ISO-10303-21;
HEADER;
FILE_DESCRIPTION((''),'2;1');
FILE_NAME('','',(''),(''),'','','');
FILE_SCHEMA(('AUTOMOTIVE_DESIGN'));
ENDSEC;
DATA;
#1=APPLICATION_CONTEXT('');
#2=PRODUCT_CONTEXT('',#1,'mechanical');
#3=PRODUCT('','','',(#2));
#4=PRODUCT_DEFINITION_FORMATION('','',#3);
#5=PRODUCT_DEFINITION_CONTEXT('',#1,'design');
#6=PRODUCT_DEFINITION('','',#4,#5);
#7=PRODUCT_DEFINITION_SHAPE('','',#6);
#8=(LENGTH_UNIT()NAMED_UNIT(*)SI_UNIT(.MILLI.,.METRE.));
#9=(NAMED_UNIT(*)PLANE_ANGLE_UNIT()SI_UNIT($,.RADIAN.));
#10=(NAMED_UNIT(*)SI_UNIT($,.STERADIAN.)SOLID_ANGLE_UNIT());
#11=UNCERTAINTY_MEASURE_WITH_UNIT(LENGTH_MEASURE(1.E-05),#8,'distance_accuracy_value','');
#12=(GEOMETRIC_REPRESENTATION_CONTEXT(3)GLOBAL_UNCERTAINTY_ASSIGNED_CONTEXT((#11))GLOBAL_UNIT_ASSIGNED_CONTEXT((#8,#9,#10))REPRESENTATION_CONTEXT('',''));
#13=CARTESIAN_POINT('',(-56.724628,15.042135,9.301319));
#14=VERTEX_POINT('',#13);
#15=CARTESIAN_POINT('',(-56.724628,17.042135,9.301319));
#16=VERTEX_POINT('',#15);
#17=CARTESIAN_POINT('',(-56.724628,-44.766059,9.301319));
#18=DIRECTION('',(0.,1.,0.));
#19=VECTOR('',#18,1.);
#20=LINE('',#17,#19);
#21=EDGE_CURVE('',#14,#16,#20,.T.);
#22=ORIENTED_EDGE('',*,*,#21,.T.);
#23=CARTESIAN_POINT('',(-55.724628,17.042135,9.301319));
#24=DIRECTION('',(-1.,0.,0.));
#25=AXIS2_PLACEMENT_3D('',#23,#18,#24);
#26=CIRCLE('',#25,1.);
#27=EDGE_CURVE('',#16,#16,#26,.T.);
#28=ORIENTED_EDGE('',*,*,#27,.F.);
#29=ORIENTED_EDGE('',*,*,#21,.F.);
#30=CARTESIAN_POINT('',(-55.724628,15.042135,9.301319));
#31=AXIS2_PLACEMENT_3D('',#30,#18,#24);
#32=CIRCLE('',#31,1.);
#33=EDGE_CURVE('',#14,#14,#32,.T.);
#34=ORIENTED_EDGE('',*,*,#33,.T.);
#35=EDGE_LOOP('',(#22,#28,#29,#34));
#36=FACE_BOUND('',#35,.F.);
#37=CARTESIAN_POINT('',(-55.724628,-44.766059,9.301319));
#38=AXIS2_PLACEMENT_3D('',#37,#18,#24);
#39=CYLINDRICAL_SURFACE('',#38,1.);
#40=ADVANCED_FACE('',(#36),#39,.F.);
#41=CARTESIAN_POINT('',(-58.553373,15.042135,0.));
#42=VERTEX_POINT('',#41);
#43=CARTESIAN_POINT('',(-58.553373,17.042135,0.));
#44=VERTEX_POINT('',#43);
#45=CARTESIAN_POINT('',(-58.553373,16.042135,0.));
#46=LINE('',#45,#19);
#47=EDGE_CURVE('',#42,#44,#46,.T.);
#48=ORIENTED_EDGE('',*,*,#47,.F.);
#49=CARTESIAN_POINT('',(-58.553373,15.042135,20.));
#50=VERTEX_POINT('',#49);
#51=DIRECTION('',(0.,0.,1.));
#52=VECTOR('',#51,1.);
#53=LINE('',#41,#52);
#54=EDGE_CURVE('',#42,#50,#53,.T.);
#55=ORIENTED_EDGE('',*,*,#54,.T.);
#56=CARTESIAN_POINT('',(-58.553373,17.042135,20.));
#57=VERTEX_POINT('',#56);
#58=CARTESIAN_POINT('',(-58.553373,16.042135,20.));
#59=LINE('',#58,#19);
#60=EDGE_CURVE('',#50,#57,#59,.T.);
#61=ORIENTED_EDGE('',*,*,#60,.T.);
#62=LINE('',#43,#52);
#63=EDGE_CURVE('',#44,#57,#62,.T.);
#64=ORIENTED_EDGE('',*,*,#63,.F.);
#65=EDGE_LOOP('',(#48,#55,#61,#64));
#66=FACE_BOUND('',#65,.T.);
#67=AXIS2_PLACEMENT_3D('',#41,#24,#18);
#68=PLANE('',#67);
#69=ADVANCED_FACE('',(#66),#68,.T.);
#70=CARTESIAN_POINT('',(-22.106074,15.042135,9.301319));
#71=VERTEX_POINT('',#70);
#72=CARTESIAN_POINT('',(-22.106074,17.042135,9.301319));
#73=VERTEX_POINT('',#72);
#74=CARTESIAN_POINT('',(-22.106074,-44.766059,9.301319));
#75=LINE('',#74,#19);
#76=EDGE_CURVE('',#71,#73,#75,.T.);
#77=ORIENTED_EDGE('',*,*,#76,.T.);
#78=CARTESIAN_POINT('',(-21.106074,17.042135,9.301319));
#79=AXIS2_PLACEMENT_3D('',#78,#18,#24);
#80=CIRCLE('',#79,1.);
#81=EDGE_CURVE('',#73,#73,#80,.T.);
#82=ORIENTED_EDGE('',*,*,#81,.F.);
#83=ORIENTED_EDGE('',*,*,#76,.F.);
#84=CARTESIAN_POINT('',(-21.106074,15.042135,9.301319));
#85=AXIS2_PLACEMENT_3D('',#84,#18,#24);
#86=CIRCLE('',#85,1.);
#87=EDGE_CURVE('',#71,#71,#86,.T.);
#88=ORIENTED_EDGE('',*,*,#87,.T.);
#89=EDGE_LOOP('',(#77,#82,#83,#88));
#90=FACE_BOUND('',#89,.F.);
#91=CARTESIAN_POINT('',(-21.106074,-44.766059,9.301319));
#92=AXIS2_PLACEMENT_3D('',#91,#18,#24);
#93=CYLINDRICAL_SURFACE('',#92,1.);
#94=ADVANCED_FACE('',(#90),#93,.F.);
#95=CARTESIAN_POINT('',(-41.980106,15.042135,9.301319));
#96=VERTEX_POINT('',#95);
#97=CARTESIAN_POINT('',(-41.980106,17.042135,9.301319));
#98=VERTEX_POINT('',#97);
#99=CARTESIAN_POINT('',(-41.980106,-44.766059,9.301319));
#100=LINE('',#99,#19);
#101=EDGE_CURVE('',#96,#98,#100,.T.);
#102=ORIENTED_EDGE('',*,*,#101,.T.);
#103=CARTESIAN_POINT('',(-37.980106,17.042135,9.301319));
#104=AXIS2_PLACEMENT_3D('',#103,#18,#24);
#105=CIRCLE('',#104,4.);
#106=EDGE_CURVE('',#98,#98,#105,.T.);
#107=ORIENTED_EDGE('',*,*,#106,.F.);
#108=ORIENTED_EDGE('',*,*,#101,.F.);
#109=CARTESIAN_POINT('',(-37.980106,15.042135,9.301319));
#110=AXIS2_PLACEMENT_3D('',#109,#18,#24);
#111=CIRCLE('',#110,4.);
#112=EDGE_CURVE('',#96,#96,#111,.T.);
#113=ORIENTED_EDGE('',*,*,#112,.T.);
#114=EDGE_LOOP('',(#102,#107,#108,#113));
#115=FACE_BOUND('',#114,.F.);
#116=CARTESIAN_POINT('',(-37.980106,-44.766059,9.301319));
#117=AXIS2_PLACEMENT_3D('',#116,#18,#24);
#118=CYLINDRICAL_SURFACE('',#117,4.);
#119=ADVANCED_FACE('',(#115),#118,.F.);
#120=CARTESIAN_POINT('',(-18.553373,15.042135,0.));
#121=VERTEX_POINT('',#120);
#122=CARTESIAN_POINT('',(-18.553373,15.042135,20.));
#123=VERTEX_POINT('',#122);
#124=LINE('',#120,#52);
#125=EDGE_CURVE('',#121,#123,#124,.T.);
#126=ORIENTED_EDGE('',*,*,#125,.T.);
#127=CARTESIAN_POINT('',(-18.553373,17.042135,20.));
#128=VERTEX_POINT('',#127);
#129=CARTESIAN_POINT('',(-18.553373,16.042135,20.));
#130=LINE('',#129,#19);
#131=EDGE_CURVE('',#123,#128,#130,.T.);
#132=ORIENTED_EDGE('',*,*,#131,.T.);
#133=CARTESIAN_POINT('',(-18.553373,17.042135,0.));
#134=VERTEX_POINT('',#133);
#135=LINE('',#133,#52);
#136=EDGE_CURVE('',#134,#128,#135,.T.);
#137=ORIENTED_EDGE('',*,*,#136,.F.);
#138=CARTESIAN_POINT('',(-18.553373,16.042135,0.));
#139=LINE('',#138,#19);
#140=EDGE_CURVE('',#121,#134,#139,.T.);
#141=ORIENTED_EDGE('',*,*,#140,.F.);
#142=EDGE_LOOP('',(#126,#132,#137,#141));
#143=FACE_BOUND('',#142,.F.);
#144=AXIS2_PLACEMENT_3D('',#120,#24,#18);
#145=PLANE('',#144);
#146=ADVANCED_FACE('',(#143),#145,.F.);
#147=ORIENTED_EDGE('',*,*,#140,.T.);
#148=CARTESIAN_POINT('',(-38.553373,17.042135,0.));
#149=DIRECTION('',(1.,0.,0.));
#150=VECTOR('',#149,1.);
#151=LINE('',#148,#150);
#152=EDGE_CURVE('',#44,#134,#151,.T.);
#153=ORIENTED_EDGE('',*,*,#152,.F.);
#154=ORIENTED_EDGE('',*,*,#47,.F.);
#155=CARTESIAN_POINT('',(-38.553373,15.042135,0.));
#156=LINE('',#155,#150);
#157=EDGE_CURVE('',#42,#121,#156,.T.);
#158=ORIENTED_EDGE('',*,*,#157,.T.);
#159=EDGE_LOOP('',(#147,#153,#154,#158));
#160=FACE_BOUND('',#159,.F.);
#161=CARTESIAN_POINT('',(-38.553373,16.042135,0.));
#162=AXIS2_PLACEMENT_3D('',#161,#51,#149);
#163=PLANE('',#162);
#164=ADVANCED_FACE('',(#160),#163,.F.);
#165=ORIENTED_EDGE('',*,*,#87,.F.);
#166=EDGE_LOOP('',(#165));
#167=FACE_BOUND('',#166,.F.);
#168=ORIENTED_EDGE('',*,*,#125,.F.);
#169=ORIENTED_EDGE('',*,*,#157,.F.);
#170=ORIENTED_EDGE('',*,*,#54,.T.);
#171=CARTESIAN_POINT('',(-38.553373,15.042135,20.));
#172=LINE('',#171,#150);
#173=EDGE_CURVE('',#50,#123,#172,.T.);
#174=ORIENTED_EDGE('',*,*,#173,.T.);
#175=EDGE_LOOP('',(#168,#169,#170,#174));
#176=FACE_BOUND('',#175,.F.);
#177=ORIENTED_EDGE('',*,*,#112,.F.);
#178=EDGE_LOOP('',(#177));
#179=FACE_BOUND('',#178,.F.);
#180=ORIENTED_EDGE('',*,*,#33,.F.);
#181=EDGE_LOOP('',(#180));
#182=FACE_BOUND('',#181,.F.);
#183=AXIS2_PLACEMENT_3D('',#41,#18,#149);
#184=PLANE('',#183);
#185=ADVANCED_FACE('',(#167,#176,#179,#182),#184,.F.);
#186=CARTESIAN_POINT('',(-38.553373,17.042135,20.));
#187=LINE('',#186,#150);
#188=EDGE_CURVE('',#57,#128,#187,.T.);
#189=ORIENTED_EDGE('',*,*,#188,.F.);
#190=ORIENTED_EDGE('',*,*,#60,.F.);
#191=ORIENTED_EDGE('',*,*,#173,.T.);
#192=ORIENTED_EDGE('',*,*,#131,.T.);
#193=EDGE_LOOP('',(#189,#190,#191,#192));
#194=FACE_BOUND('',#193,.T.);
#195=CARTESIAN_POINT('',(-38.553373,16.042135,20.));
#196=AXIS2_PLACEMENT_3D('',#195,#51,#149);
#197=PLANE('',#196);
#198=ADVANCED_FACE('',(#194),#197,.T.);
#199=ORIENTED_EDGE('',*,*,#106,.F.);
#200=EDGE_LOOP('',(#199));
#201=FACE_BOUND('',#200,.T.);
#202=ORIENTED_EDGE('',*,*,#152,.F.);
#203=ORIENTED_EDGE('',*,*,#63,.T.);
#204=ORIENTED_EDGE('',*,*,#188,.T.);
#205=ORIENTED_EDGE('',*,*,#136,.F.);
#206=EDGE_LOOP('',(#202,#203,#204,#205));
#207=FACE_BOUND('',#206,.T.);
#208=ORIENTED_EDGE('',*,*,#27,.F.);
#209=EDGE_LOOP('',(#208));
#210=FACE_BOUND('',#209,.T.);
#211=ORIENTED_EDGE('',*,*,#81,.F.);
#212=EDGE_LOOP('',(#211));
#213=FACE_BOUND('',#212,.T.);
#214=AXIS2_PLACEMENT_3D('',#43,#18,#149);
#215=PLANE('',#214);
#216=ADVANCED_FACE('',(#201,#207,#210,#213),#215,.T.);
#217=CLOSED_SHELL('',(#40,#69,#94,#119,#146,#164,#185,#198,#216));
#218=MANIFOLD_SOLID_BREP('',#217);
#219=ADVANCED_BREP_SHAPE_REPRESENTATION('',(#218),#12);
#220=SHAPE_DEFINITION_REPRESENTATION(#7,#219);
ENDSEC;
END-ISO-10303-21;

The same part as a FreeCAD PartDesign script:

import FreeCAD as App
import Part
import Sketcher

V = App.Vector
Q = App.Units.Quantity


def add_polygon(sketch, points):
    """Adds a closed chain of lines whose ends are joined by coincident constraints."""
    first, n = sketch.GeometryCount, len(points)
    for a, b in zip(points, points[1:] + points[:1]):
        sketch.addGeometry(Part.LineSegment(App.Vector(*a, 0), App.Vector(*b, 0)), False)
    for i in range(n):
        sketch.addConstraint(Sketcher.Constraint("Coincident", first + i, 2, first + (i + 1) % n, 1))

doc = App.newDocument("Part")
body = doc.addObject("PartDesign::Body", "Body")

# Sketch on XY plane
sketch1 = body.newObject("Sketcher::SketchObject", "Sketch")
sketch1.AttachmentSupport = (doc.getObject("XY_Plane"), [""])
sketch1.MapMode = "FlatFace"
add_polygon(sketch1, [(-58.553373, 17.042135), (-58.553373, 15.042135), (-18.553373, 15.042135), (-18.553373, 17.042135)])  # lines 0-3
sketch1.addConstraint([
    Sketcher.Constraint("Vertical", 0),
    Sketcher.Constraint("Horizontal", 1),
    Sketcher.Constraint("Vertical", 2),
    Sketcher.Constraint("Horizontal", 3),
    Sketcher.Constraint("DistanceX", 1, 1, 1, 2, Q("40 mm")),
    Sketcher.Constraint("DistanceY", 0, 2, 0, 1, Q("2 mm")),
    Sketcher.Constraint("DistanceX", 0, 2, -1, 1, Q("58.553373 mm")),
    Sketcher.Constraint("DistanceY", -1, 1, 0, 2, Q("15.042135 mm")),
])
pad1 = body.newObject("PartDesign::Pad", "Pad")
pad1.Profile = sketch1
pad1.Length = 20

# Sketch on XZ plane
sketch2 = body.newObject("Sketcher::SketchObject", "Sketch001")
sketch2.AttachmentSupport = (doc.getObject("XZ_Plane"), [""])
sketch2.MapMode = "FlatFace"
sketch2.addGeometry(Part.Circle(V(-37.980106, 9.301319, 0), V(0, 0, 1), 4), False)
sketch2.addConstraint([
    Sketcher.Constraint("Diameter", 0, Q("8 mm")),
    Sketcher.Constraint("DistanceY", -1, 1, 0, 3, Q("9.301319 mm")),
    Sketcher.Constraint("DistanceX", 0, 3, -1, 1, Q("37.980106 mm")),
])
doc.recompute()
hole = body.newObject("PartDesign::Hole", "Hole")
hole.Profile = sketch2
hole.ThreadType = "None"
hole.Diameter = 8
hole.DepthType = "ThroughAll"

# Sketch on XZ plane
sketch3 = body.newObject("Sketcher::SketchObject", "Sketch002")
sketch3.AttachmentSupport = (doc.getObject("XZ_Plane"), [""])
sketch3.MapMode = "FlatFace"
sketch3.addGeometry([
    Part.Circle(V(-55.724628, 9.301319, 0), V(0, 0, 1), 1),
    Part.Circle(V(-21.106074, 9.301319, 0), V(0, 0, 1), 1),
], False)
sketch3.addConstraint([
    Sketcher.Constraint("Equal", 0, 1),
    Sketcher.Constraint("Horizontal", 0, 3, 1, 3),
    Sketcher.Constraint("Diameter", 0, Q("2 mm")),
    Sketcher.Constraint("DistanceX", 0, 3, -1, 1, Q("55.724628 mm")),
    Sketcher.Constraint("DistanceY", -1, 1, 0, 3, Q("9.301319 mm")),
    Sketcher.Constraint("DistanceX", 1, 3, -1, 1, Q("21.106074 mm")),
])
doc.recompute()
hole2 = body.newObject("PartDesign::Hole", "Hole001")
hole2.Profile = sketch3
hole2.ThreadType = "None"
hole2.Diameter = 2
hole2.DepthType = "ThroughAll"

doc.recompute()
